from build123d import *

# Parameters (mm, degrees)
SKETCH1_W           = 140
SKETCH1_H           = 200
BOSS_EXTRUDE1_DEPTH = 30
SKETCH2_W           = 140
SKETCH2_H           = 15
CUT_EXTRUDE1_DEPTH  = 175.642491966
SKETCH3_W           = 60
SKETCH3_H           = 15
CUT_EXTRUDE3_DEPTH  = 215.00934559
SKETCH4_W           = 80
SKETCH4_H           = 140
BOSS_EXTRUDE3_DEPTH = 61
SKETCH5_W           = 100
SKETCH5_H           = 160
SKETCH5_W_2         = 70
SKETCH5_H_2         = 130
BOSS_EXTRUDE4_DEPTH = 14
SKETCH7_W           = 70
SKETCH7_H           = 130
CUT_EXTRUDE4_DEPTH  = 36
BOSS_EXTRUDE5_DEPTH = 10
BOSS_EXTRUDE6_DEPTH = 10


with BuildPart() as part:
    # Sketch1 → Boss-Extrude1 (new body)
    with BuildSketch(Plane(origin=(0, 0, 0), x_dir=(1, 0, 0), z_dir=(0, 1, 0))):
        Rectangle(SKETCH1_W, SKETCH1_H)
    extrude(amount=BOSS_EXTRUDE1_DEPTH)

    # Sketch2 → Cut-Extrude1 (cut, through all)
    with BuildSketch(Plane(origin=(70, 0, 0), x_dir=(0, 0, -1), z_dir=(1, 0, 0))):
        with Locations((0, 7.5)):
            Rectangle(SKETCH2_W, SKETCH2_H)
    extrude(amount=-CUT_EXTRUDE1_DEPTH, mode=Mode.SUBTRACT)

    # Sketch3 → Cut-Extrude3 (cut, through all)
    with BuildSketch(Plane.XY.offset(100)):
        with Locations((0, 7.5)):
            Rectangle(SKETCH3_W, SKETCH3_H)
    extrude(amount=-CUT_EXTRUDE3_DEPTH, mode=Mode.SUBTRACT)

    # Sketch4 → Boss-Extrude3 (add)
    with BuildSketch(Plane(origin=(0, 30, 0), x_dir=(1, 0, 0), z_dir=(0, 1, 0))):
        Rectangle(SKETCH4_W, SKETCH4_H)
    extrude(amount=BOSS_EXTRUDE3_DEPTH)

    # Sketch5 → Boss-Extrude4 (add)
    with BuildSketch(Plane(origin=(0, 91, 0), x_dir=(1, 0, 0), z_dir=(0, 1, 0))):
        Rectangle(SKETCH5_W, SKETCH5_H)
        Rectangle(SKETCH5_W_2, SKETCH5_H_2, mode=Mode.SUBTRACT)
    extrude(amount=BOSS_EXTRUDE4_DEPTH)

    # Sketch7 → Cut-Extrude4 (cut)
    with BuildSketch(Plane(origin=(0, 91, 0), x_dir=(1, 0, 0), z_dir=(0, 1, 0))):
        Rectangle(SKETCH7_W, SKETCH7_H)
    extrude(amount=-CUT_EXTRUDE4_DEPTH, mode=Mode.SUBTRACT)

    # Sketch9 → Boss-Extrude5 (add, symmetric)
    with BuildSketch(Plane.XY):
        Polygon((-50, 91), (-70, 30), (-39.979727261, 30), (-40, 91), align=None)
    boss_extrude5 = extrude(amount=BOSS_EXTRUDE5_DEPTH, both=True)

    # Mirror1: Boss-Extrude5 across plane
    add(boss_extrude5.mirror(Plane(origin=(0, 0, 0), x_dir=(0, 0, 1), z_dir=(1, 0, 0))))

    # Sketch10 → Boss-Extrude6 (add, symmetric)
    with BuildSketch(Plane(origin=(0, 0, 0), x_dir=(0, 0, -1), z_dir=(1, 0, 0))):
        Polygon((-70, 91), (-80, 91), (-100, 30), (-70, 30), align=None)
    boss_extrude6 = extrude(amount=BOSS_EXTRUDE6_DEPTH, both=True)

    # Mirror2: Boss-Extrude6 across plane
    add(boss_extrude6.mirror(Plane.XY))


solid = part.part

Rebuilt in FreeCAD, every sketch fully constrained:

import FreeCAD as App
import Part
import Sketcher
from FreeCAD import Vector
Q = App.Units.Quantity

doc = App.newDocument("Part")
body = doc.addObject("PartDesign::Body", "Body")

# Sketch on XZ plane
sketch1 = body.newObject("Sketcher::SketchObject", "Sketch")
sketch1.AttachmentSupport = (doc.getObject("XZ_Plane"), [""])
sketch1.MapMode = "FlatFace"
sketch1.addGeometry(Part.LineSegment(Vector(-70, -100, 0), Vector(-70, 100, 0)), False)
sketch1.addGeometry(Part.LineSegment(Vector(-70, 100, 0), Vector(70, 100, 0)), False)
sketch1.addGeometry(Part.LineSegment(Vector(70, 100, 0), Vector(70, -100, 0)), False)
sketch1.addGeometry(Part.LineSegment(Vector(70, -100, 0), Vector(-70, -100, 0)), False)
sketch1.addConstraint(Sketcher.Constraint("Coincident", 0, 2, 1, 1))
sketch1.addConstraint(Sketcher.Constraint("Coincident", 1, 2, 2, 1))
sketch1.addConstraint(Sketcher.Constraint("Coincident", 2, 2, 3, 1))
sketch1.addConstraint(Sketcher.Constraint("Coincident", 3, 2, 0, 1))
sketch1.addConstraint(Sketcher.Constraint("Vertical", 0))
sketch1.addConstraint(Sketcher.Constraint("Horizontal", 1))
sketch1.addConstraint(Sketcher.Constraint("Vertical", 2))
sketch1.addConstraint(Sketcher.Constraint("Horizontal", 3))
sketch1.addConstraint(Sketcher.Constraint("Symmetric", 0, 2, 2, 2, -1, 1))
sketch1.addConstraint(Sketcher.Constraint("DistanceX", 1, 1, 1, 2, Q("140 mm")))
sketch1.addConstraint(Sketcher.Constraint("DistanceY", 0, 1, 0, 2, Q("200 mm")))
pad1 = body.newObject("PartDesign::Pad", "Pad")
pad1.Profile = sketch1
pad1.Length = 30
pad1.Reversed = True

# Sketch on YZ plane
sketch2 = body.newObject("Sketcher::SketchObject", "Sketch001")
sketch2.AttachmentSupport = (doc.getObject("YZ_Plane"), [""])
sketch2.MapMode = "FlatFace"
sketch2.AttachmentOffset = App.Placement(Vector(0, 0, 70), App.Rotation())
sketch2.addGeometry(Part.LineSegment(Vector(15, 70, 0), Vector(0, 70, 0)), False)
sketch2.addGeometry(Part.LineSegment(Vector(0, 70, 0), Vector(0, -70, 0)), False)
sketch2.addGeometry(Part.LineSegment(Vector(0, -70, 0), Vector(15, -70, 0)), False)
sketch2.addGeometry(Part.LineSegment(Vector(15, -70, 0), Vector(15, 70, 0)), False)
sketch2.addConstraint(Sketcher.Constraint("Coincident", 0, 2, 1, 1))
sketch2.addConstraint(Sketcher.Constraint("Coincident", 1, 2, 2, 1))
sketch2.addConstraint(Sketcher.Constraint("Coincident", 2, 2, 3, 1))
sketch2.addConstraint(Sketcher.Constraint("Coincident", 3, 2, 0, 1))
sketch2.addConstraint(Sketcher.Constraint("Horizontal", 0))
sketch2.addConstraint(Sketcher.Constraint("Vertical", 1))
sketch2.addConstraint(Sketcher.Constraint("Horizontal", 2))
sketch2.addConstraint(Sketcher.Constraint("Vertical", 3))
sketch2.addConstraint(Sketcher.Constraint("Symmetric", 0, 2, 1, 2, -1, 1))
sketch2.addConstraint(Sketcher.Constraint("DistanceX", 0, 2, 0, 1, Q("15 mm")))
sketch2.addConstraint(Sketcher.Constraint("DistanceY", 1, 2, 1, 1, Q("140 mm")))
pocket1 = body.newObject("PartDesign::Pocket", "Pocket")
pocket1.Profile = sketch2
pocket1.Type = "ThroughAll"

# Sketch on XY plane
sketch3 = body.newObject("Sketcher::SketchObject", "Sketch002")
sketch3.AttachmentSupport = (doc.getObject("XY_Plane"), [""])
sketch3.MapMode = "FlatFace"
sketch3.AttachmentOffset = App.Placement(Vector(0, 0, 100), App.Rotation())
sketch3.addGeometry(Part.LineSegment(Vector(-30, 15, 0), Vector(-30, 0, 0)), False)
sketch3.addGeometry(Part.LineSegment(Vector(-30, 0, 0), Vector(30, 0, 0)), False)
sketch3.addGeometry(Part.LineSegment(Vector(30, 0, 0), Vector(30, 15, 0)), False)
sketch3.addGeometry(Part.LineSegment(Vector(30, 15, 0), Vector(-30, 15, 0)), False)
sketch3.addConstraint(Sketcher.Constraint("Coincident", 0, 2, 1, 1))
sketch3.addConstraint(Sketcher.Constraint("Coincident", 1, 2, 2, 1))
sketch3.addConstraint(Sketcher.Constraint("Coincident", 2, 2, 3, 1))
sketch3.addConstraint(Sketcher.Constraint("Coincident", 3, 2, 0, 1))
sketch3.addConstraint(Sketcher.Constraint("Vertical", 0))
sketch3.addConstraint(Sketcher.Constraint("Horizontal", 1))
sketch3.addConstraint(Sketcher.Constraint("Vertical", 2))
sketch3.addConstraint(Sketcher.Constraint("Horizontal", 3))
sketch3.addConstraint(Sketcher.Constraint("Symmetric", 0, 2, 1, 2, -1, 1))
sketch3.addConstraint(Sketcher.Constraint("DistanceX", 1, 1, 1, 2, Q("60 mm")))
sketch3.addConstraint(Sketcher.Constraint("DistanceY", 0, 2, 0, 1, Q("15 mm")))
pocket2 = body.newObject("PartDesign::Pocket", "Pocket001")
pocket2.Profile = sketch3
pocket2.Type = "ThroughAll"

# Sketch on XZ plane
sketch4 = body.newObject("Sketcher::SketchObject", "Sketch003")
sketch4.AttachmentSupport = (doc.getObject("XZ_Plane"), [""])
sketch4.MapMode = "FlatFace"
sketch4.AttachmentOffset = App.Placement(Vector(0, 0, -30), App.Rotation())
sketch4.addGeometry(Part.LineSegment(Vector(-40, -70, 0), Vector(-40, 70, 0)), False)
sketch4.addGeometry(Part.LineSegment(Vector(-40, 70, 0), Vector(40, 70, 0)), False)
sketch4.addGeometry(Part.LineSegment(Vector(40, 70, 0), Vector(40, -70, 0)), False)
sketch4.addGeometry(Part.LineSegment(Vector(40, -70, 0), Vector(-40, -70, 0)), False)
sketch4.addConstraint(Sketcher.Constraint("Coincident", 0, 2, 1, 1))
sketch4.addConstraint(Sketcher.Constraint("Coincident", 1, 2, 2, 1))
sketch4.addConstraint(Sketcher.Constraint("Coincident", 2, 2, 3, 1))
sketch4.addConstraint(Sketcher.Constraint("Coincident", 3, 2, 0, 1))
sketch4.addConstraint(Sketcher.Constraint("Vertical", 0))
sketch4.addConstraint(Sketcher.Constraint("Horizontal", 1))
sketch4.addConstraint(Sketcher.Constraint("Vertical", 2))
sketch4.addConstraint(Sketcher.Constraint("Horizontal", 3))
sketch4.addConstraint(Sketcher.Constraint("Symmetric", 0, 2, 2, 2, -1, 1))
sketch4.addConstraint(Sketcher.Constraint("DistanceX", 1, 1, 1, 2, Q("80 mm")))
sketch4.addConstraint(Sketcher.Constraint("DistanceY", 0, 1, 0, 2, Q("140 mm")))
pad2 = body.newObject("PartDesign::Pad", "Pad001")
pad2.Profile = sketch4
pad2.Length = 61
pad2.Reversed = True

# Sketch on XZ plane
sketch5 = body.newObject("Sketcher::SketchObject", "Sketch004")
sketch5.AttachmentSupport = (doc.getObject("XZ_Plane"), [""])
sketch5.MapMode = "FlatFace"
sketch5.AttachmentOffset = App.Placement(Vector(0, 0, -91), App.Rotation())
sketch5.addGeometry(Part.LineSegment(Vector(-50, -80, 0), Vector(-50, 80, 0)), False)
sketch5.addGeometry(Part.LineSegment(Vector(-50, 80, 0), Vector(50, 80, 0)), False)
sketch5.addGeometry(Part.LineSegment(Vector(50, 80, 0), Vector(50, -80, 0)), False)
sketch5.addGeometry(Part.LineSegment(Vector(50, -80, 0), Vector(-50, -80, 0)), False)
sketch5.addGeometry(Part.LineSegment(Vector(35, 65, 0), Vector(-35, 65, 0)), False)
sketch5.addGeometry(Part.LineSegment(Vector(-35, 65, 0), Vector(-35, -65, 0)), False)
sketch5.addGeometry(Part.LineSegment(Vector(-35, -65, 0), Vector(35, -65, 0)), False)
sketch5.addGeometry(Part.LineSegment(Vector(35, -65, 0), Vector(35, 65, 0)), False)
sketch5.addConstraint(Sketcher.Constraint("Coincident", 0, 2, 1, 1))
sketch5.addConstraint(Sketcher.Constraint("Coincident", 1, 2, 2, 1))
sketch5.addConstraint(Sketcher.Constraint("Coincident", 2, 2, 3, 1))
sketch5.addConstraint(Sketcher.Constraint("Coincident", 3, 2, 0, 1))
sketch5.addConstraint(Sketcher.Constraint("Coincident", 4, 2, 5, 1))
sketch5.addConstraint(Sketcher.Constraint("Coincident", 5, 2, 6, 1))
sketch5.addConstraint(Sketcher.Constraint("Coincident", 6, 2, 7, 1))
sketch5.addConstraint(Sketcher.Constraint("Coincident", 7, 2, 4, 1))
sketch5.addConstraint(Sketcher.Constraint("Vertical", 0))
sketch5.addConstraint(Sketcher.Constraint("Horizontal", 1))
sketch5.addConstraint(Sketcher.Constraint("Vertical", 2))
sketch5.addConstraint(Sketcher.Constraint("Horizontal", 3))
sketch5.addConstraint(Sketcher.Constraint("Horizontal", 4))
sketch5.addConstraint(Sketcher.Constraint("Vertical", 5))
sketch5.addConstraint(Sketcher.Constraint("Horizontal", 6))
sketch5.addConstraint(Sketcher.Constraint("Vertical", 7))
sketch5.addConstraint(Sketcher.Constraint("Symmetric", 0, 2, 2, 2, -1, 1))
sketch5.addConstraint(Sketcher.Constraint("Symmetric", 4, 2, 6, 2, -1, 1))
sketch5.addConstraint(Sketcher.Constraint("DistanceX", 1, 1, 1, 2, Q("100 mm")))
sketch5.addConstraint(Sketcher.Constraint("DistanceX", 4, 2, 4, 1, Q("70 mm")))
sketch5.addConstraint(Sketcher.Constraint("DistanceY", 0, 1, 0, 2, Q("160 mm")))
sketch5.addConstraint(Sketcher.Constraint("DistanceY", 5, 2, 5, 1, Q("130 mm")))
pad3 = body.newObject("PartDesign::Pad", "Pad002")
pad3.Profile = sketch5
pad3.Length = 14
pad3.Reversed = True

# Sketch on XZ plane
sketch6 = body.newObject("Sketcher::SketchObject", "Sketch005")
sketch6.AttachmentSupport = (doc.getObject("XZ_Plane"), [""])
sketch6.MapMode = "FlatFace"
sketch6.AttachmentOffset = App.Placement(Vector(0, 0, -91), App.Rotation())
sketch6.addGeometry(Part.LineSegment(Vector(-35, -65, 0), Vector(-35, 65, 0)), False)
sketch6.addGeometry(Part.LineSegment(Vector(-35, 65, 0), Vector(35, 65, 0)), False)
sketch6.addGeometry(Part.LineSegment(Vector(35, 65, 0), Vector(35, -65, 0)), False)
sketch6.addGeometry(Part.LineSegment(Vector(35, -65, 0), Vector(-35, -65, 0)), False)
sketch6.addConstraint(Sketcher.Constraint("Coincident", 0, 2, 1, 1))
sketch6.addConstraint(Sketcher.Constraint("Coincident", 1, 2, 2, 1))
sketch6.addConstraint(Sketcher.Constraint("Coincident", 2, 2, 3, 1))
sketch6.addConstraint(Sketcher.Constraint("Coincident", 3, 2, 0, 1))
sketch6.addConstraint(Sketcher.Constraint("Vertical", 0))
sketch6.addConstraint(Sketcher.Constraint("Horizontal", 1))
sketch6.addConstraint(Sketcher.Constraint("Vertical", 2))
sketch6.addConstraint(Sketcher.Constraint("Horizontal", 3))
sketch6.addConstraint(Sketcher.Constraint("Symmetric", 0, 2, 2, 2, -1, 1))
sketch6.addConstraint(Sketcher.Constraint("DistanceX", 1, 1, 1, 2, Q("70 mm")))
sketch6.addConstraint(Sketcher.Constraint("DistanceY", 0, 1, 0, 2, Q("130 mm")))
pocket3 = body.newObject("PartDesign::Pocket", "Pocket002")
pocket3.Profile = sketch6
pocket3.Length = 36
pocket3.Reversed = True

# Sketch on XY plane
sketch7 = body.newObject("Sketcher::SketchObject", "Sketch006")
sketch7.AttachmentSupport = (doc.getObject("XY_Plane"), [""])
sketch7.MapMode = "FlatFace"
sketch7.addGeometry(Part.LineSegment(Vector(-50, 91, 0), Vector(-70, 30, 0)), False)
sketch7.addGeometry(Part.LineSegment(Vector(-70, 30, 0), Vector(-40, 30, 0)), False)
sketch7.addGeometry(Part.LineSegment(Vector(-40, 30, 0), Vector(-40, 91, 0)), False)
sketch7.addGeometry(Part.LineSegment(Vector(-40, 91, 0), Vector(-50, 91, 0)), False)
sketch7.addConstraint(Sketcher.Constraint("Coincident", 0, 2, 1, 1))
sketch7.addConstraint(Sketcher.Constraint("Coincident", 1, 2, 2, 1))
sketch7.addConstraint(Sketcher.Constraint("Coincident", 2, 2, 3, 1))
sketch7.addConstraint(Sketcher.Constraint("Coincident", 3, 2, 0, 1))
sketch7.addConstraint(Sketcher.Constraint("Horizontal", 1))
sketch7.addConstraint(Sketcher.Constraint("Horizontal", 3))
sketch7.addConstraint(Sketcher.Constraint("DistanceX", 3, 2, 3, 1, Q("10 mm")))
sketch7.addConstraint(Sketcher.Constraint("DistanceX", 0, 2, -1, 1, Q("70 mm")))
sketch7.addConstraint(Sketcher.Constraint("DistanceY", -1, 1, 0, 2, Q("30 mm")))
sketch7.addConstraint(Sketcher.Constraint("DistanceX", 2, 2, -1, 1, Q("40 mm")))
sketch7.addConstraint(Sketcher.Constraint("DistanceY", -1, 1, 2, 2, Q("91 mm")))
sketch7.addConstraint(Sketcher.Constraint("DistanceX", 1, 1, 1, 2, Q("30.020273 mm")))
pad4 = body.newObject("PartDesign::Pad", "Pad003")
pad4.Profile = sketch7
pad4.Length = 20
pad4.Midplane = True
doc.recompute()

mirrored = body.newObject("PartDesign::Mirrored", "Mirrored")
mirrored.Originals = [pad4]
mirrored.MirrorPlane = (doc.getObject("YZ_Plane"), [""])
body.Tip = mirrored

# Sketch on YZ plane
sketch8 = body.newObject("Sketcher::SketchObject", "Sketch007")
sketch8.AttachmentSupport = (doc.getObject("YZ_Plane"), [""])
sketch8.MapMode = "FlatFace"
sketch8.addGeometry(Part.LineSegment(Vector(91, 70, 0), Vector(91, 80, 0)), False)
sketch8.addGeometry(Part.LineSegment(Vector(91, 80, 0), Vector(30, 100, 0)), False)
sketch8.addGeometry(Part.LineSegment(Vector(30, 100, 0), Vector(30, 70, 0)), False)
sketch8.addGeometry(Part.LineSegment(Vector(30, 70, 0), Vector(91, 70, 0)), False)
sketch8.addConstraint(Sketcher.Constraint("Coincident", 0, 2, 1, 1))
sketch8.addConstraint(Sketcher.Constraint("Coincident", 1, 2, 2, 1))
sketch8.addConstraint(Sketcher.Constraint("Coincident", 2, 2, 3, 1))
sketch8.addConstraint(Sketcher.Constraint("Coincident", 3, 2, 0, 1))
sketch8.addConstraint(Sketcher.Constraint("Vertical", 0))
sketch8.addConstraint(Sketcher.Constraint("Vertical", 2))
sketch8.addConstraint(Sketcher.Constraint("Horizontal", 3))
sketch8.addConstraint(Sketcher.Constraint("DistanceX", 3, 1, 3, 2, Q("61 mm")))
sketch8.addConstraint(Sketcher.Constraint("DistanceY", 0, 1, 0, 2, Q("10 mm")))
sketch8.addConstraint(Sketcher.Constraint("DistanceY", 2, 2, 2, 1, Q("30 mm")))
sketch8.addConstraint(Sketcher.Constraint("DistanceX", -1, 1, 0, 2, Q("91 mm")))
sketch8.addConstraint(Sketcher.Constraint("DistanceY", -1, 1, 0, 2, Q("80 mm")))
pad5 = body.newObject("PartDesign::Pad", "Pad004")
pad5.Profile = sketch8
pad5.Length = 20
pad5.Midplane = True
doc.recompute()

mirrored2 = body.newObject("PartDesign::Mirrored", "Mirrored001")
mirrored2.Originals = [pad5]
mirrored2.MirrorPlane = (doc.getObject("XY_Plane"), [""])
body.Tip = mirrored2

doc.recompute()
